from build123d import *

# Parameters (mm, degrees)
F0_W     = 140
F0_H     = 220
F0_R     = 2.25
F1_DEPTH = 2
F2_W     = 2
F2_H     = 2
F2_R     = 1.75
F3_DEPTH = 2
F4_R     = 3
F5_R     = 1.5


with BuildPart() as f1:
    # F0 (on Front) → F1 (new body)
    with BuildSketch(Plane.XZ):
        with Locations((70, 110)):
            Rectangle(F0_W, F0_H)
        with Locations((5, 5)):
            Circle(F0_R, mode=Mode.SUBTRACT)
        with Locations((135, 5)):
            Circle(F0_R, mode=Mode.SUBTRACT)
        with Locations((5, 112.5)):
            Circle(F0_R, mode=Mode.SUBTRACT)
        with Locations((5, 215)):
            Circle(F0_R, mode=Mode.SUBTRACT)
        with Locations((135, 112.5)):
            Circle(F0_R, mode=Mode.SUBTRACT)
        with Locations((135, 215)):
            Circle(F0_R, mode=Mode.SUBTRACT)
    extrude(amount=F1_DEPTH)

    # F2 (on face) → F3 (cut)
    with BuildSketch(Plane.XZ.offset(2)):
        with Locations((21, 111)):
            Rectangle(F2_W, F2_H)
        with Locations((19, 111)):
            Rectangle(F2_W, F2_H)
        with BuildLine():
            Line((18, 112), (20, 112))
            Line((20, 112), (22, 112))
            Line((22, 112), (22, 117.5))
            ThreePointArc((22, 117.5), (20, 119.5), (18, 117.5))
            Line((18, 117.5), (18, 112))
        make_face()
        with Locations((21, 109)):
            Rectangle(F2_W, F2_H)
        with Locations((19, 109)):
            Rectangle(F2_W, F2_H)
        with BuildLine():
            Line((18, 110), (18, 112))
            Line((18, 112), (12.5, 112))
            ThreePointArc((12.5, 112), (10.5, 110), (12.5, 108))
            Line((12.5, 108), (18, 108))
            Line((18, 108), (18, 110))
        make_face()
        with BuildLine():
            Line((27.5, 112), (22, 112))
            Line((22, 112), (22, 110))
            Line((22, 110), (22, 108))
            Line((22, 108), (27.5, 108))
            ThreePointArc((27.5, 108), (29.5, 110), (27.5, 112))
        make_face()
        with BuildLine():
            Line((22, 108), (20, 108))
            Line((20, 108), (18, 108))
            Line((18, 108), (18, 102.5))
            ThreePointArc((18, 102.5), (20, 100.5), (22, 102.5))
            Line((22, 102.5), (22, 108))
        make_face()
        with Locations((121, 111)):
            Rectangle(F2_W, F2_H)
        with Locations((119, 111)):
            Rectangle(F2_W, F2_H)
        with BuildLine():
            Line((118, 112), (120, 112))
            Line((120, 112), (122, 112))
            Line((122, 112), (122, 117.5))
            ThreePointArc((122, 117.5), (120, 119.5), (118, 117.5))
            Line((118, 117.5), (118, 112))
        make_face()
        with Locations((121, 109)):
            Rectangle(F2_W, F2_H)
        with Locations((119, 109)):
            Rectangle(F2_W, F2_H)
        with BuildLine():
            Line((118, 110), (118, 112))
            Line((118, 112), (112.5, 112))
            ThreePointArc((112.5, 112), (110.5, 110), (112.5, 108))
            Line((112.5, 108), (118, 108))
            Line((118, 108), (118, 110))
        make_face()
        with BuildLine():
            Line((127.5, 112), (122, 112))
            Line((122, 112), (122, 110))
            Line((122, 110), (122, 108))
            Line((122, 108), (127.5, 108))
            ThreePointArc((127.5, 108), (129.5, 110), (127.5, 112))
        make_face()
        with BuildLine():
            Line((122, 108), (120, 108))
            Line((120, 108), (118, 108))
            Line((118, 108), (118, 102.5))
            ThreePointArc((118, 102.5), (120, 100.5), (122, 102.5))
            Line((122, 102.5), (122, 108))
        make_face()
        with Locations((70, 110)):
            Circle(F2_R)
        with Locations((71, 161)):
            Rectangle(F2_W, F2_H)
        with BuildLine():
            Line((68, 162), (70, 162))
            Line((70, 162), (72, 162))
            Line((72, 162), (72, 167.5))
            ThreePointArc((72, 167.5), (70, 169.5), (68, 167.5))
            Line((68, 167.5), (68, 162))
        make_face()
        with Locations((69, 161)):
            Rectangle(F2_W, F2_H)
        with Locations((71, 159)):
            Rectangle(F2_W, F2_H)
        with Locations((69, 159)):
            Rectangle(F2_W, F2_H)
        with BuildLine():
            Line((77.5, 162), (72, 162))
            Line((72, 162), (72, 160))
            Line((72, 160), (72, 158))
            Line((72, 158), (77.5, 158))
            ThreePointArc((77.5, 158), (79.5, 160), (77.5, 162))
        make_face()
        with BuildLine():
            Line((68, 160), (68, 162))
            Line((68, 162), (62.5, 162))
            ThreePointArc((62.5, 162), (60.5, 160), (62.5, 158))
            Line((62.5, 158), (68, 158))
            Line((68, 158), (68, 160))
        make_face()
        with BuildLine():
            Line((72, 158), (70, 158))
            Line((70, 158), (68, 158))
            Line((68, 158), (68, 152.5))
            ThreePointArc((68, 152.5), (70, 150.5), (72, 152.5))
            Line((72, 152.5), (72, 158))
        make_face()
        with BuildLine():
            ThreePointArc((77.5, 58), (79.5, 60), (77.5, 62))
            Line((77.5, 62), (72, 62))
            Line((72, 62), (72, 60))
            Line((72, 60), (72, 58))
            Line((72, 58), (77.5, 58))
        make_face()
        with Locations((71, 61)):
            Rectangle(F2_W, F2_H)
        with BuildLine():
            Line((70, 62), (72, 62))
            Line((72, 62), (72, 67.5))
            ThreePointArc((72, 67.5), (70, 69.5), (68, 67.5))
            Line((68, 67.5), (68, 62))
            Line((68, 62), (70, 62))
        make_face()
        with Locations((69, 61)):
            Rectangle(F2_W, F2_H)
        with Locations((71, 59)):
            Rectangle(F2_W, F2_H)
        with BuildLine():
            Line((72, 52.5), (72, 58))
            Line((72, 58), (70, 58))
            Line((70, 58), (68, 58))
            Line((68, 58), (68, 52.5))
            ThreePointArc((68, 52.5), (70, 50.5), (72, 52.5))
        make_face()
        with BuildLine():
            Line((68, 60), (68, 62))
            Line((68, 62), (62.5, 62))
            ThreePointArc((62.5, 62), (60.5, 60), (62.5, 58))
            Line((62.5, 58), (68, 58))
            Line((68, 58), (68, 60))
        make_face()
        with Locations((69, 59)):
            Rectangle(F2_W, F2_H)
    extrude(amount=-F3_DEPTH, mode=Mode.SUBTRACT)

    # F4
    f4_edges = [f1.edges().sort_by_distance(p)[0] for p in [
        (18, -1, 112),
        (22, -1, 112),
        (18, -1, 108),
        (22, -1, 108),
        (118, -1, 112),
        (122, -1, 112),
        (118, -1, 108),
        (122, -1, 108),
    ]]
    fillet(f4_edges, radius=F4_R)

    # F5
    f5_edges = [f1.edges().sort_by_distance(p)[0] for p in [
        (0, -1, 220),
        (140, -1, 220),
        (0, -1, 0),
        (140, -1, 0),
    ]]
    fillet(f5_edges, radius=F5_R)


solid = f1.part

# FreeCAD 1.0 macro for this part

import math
import FreeCAD as App
import Part
import Sketcher
Q = App.Units.Quantity


def edges_at(feature, points):
    """Names of the edges that pass closest to the given points."""
    edges = feature.Shape.Edges
    near = lambda p: min(range(len(edges)), key=lambda i: edges[i].distToShape(Part.Vertex(*p))[0])
    return sorted({f"Edge{near(p) + 1}" for p in points})


def add_polygon(sketch, points):
    """Adds a closed chain of lines whose ends are joined by coincident constraints."""
    first, n = sketch.GeometryCount, len(points)
    for a, b in zip(points, points[1:] + points[:1]):
        sketch.addGeometry(Part.LineSegment(App.Vector(*a, 0), App.Vector(*b, 0)), False)
    for i in range(n):
        sketch.addConstraint(Sketcher.Constraint("Coincident", first + i, 2, first + (i + 1) % n, 1))

doc = App.newDocument("Part")
params = doc.addObject("Spreadsheet::Sheet", "Params")
for row, (alias, value) in enumerate([
    ("sketch1_diameter", "4.5 mm"),
    ("sketch1_width", "140 mm"),
    ("sketch1_height", "220 mm"),
    ("pad1_length", "2 mm"),
    ("sketch2_radius", "2 mm"),
    ("sketch2_diameter", "3.5 mm"),
    ("sketch2_width", "5.5 mm"),
    ("pocket1_length", "2 mm"),
    ("fillet_radius", "3 mm"),
    ("fillet2_radius", "1.5 mm"),
], start=1):
    params.set(f"A{row}", alias)
    params.set(f"B{row}", "=" + value)
    params.setAlias(f"B{row}", alias)

body = doc.addObject("PartDesign::Body", "Body")

# Sketch on XZ plane
sketch1 = doc.addObject("Sketcher::SketchObject", "Sketch")
body.addObject(sketch1)
sketch1.AttachmentSupport = (doc.XZ_Plane, [""])
sketch1.MapMode = "FlatFace"
add_polygon(sketch1, [(0, 220), (0, 0), (140, 0), (140, 220)])  # lines 0-3
sketch1.addGeometry(Part.Circle(App.Vector(5, 5, 0), App.Vector(0, 0, 1), 2.25), False)  # 4
sketch1.addGeometry(Part.Circle(App.Vector(135, 5, 0), App.Vector(0, 0, 1), 2.25), False)  # 5
sketch1.addGeometry(Part.Circle(App.Vector(5, 112.5, 0), App.Vector(0, 0, 1), 2.25), False)  # 6
sketch1.addGeometry(Part.Circle(App.Vector(5, 215, 0), App.Vector(0, 0, 1), 2.25), False)  # 7
sketch1.addGeometry(Part.Circle(App.Vector(135, 112.5, 0), App.Vector(0, 0, 1), 2.25), False)  # 8
sketch1.addGeometry(Part.Circle(App.Vector(135, 215, 0), App.Vector(0, 0, 1), 2.25), False)  # 9
sketch1.addConstraint([
    Sketcher.Constraint("Vertical", 0),
    Sketcher.Constraint("Horizontal", 1),
    Sketcher.Constraint("Vertical", 2),
    Sketcher.Constraint("Horizontal", 3),
    Sketcher.Constraint("Coincident", 0, 2, -1, 1),
    Sketcher.Constraint("Equal", 4, 5),
    Sketcher.Constraint("Equal", 5, 6),
    Sketcher.Constraint("Equal", 6, 7),
    Sketcher.Constraint("Equal", 7, 8),
    Sketcher.Constraint("Equal", 8, 9),
    Sketcher.Constraint("Horizontal", 4, 3, 5, 3),
    Sketcher.Constraint("Horizontal", 6, 3, 8, 3),
    Sketcher.Constraint("Horizontal", 7, 3, 9, 3),
    Sketcher.Constraint("Vertical", 4, 3, 6, 3),
    Sketcher.Constraint("Vertical", 6, 3, 7, 3),
    Sketcher.Constraint("Vertical", 5, 3, 8, 3),
    Sketcher.Constraint("Vertical", 8, 3, 9, 3),
    Sketcher.Constraint("Diameter", 4, Q("4.5 mm")),
    Sketcher.Constraint("DistanceX", 1, 1, 1, 2, Q("140 mm")),
    Sketcher.Constraint("DistanceY", 0, 2, 0, 1, Q("220 mm")),
    Sketcher.Constraint("DistanceX", -1, 1, 4, 3, Q("5 mm")),
    Sketcher.Constraint("DistanceY", -1, 1, 4, 3, Q("5 mm")),
    Sketcher.Constraint("DistanceX", -1, 1, 5, 3, Q("135 mm")),
    Sketcher.Constraint("DistanceY", -1, 1, 7, 3, Q("215 mm")),
    Sketcher.Constraint("DistanceY", -1, 1, 6, 3, Q("112.5 mm")),
])
sketch1.setExpression("Constraints[21]", "Params.sketch1_diameter")
sketch1.setExpression("Constraints[22]", "Params.sketch1_width")
sketch1.setExpression("Constraints[23]", "Params.sketch1_height")
pad1 = doc.addObject("PartDesign::Pad", "Pad")
body.addObject(pad1)
pad1.Profile = sketch1
pad1.setExpression("Length", "Params.pad1_length")

# Sketch on XZ plane
sketch2 = doc.addObject("Sketcher::SketchObject", "Sketch001")
body.addObject(sketch2)
sketch2.AttachmentSupport = (doc.XZ_Plane, [""])
sketch2.MapMode = "FlatFace"
sketch2.AttachmentOffset = App.Placement(App.Vector(0, 0, 2), App.Rotation())
sketch2.addGeometry([
    Part.ArcOfCircle(Part.Circle(App.Vector(20, 117.5, 0), App.Vector(0, 0, 1), 2), math.radians(0), math.radians(180)),  # 0
    Part.LineSegment(App.Vector(18, 117.5, 0), App.Vector(18, 112, 0)),  # 1
    Part.LineSegment(App.Vector(18, 112, 0), App.Vector(12.5, 112, 0)),  # 2
    Part.ArcOfCircle(Part.Circle(App.Vector(12.5, 110, 0), App.Vector(0, 0, 1), 2), math.radians(90), math.radians(270)),  # 3
    Part.LineSegment(App.Vector(12.5, 108, 0), App.Vector(18, 108, 0)),  # 4
    Part.LineSegment(App.Vector(18, 108, 0), App.Vector(18, 102.5, 0)),  # 5
    Part.ArcOfCircle(Part.Circle(App.Vector(20, 102.5, 0), App.Vector(0, 0, 1), 2), math.radians(180), math.radians(360)),  # 6
    Part.LineSegment(App.Vector(22, 102.5, 0), App.Vector(22, 108, 0)),  # 7
    Part.LineSegment(App.Vector(22, 108, 0), App.Vector(27.5, 108, 0)),  # 8
    Part.ArcOfCircle(Part.Circle(App.Vector(27.5, 110, 0), App.Vector(0, 0, 1), 2), math.radians(-90), math.radians(90)),  # 9
    Part.LineSegment(App.Vector(27.5, 112, 0), App.Vector(22, 112, 0)),  # 10
    Part.LineSegment(App.Vector(22, 112, 0), App.Vector(22, 117.5, 0)),  # 11
    Part.ArcOfCircle(Part.Circle(App.Vector(120, 117.5, 0), App.Vector(0, 0, 1), 2), math.radians(0), math.radians(180)),  # 12
    Part.LineSegment(App.Vector(118, 117.5, 0), App.Vector(118, 112, 0)),  # 13
    Part.LineSegment(App.Vector(118, 112, 0), App.Vector(112.5, 112, 0)),  # 14
    Part.ArcOfCircle(Part.Circle(App.Vector(112.5, 110, 0), App.Vector(0, 0, 1), 2), math.radians(90), math.radians(270)),  # 15
    Part.LineSegment(App.Vector(112.5, 108, 0), App.Vector(118, 108, 0)),  # 16
    Part.LineSegment(App.Vector(118, 108, 0), App.Vector(118, 102.5, 0)),  # 17
    Part.ArcOfCircle(Part.Circle(App.Vector(120, 102.5, 0), App.Vector(0, 0, 1), 2), math.radians(180), math.radians(360)),  # 18
    Part.LineSegment(App.Vector(122, 102.5, 0), App.Vector(122, 108, 0)),  # 19
    Part.LineSegment(App.Vector(122, 108, 0), App.Vector(127.5, 108, 0)),  # 20
    Part.ArcOfCircle(Part.Circle(App.Vector(127.5, 110, 0), App.Vector(0, 0, 1), 2), math.radians(-90), math.radians(90)),  # 21
    Part.LineSegment(App.Vector(127.5, 112, 0), App.Vector(122, 112, 0)),  # 22
    Part.LineSegment(App.Vector(122, 112, 0), App.Vector(122, 117.5, 0)),  # 23
    Part.Circle(App.Vector(70, 110, 0), App.Vector(0, 0, 1), 1.75),  # 24
    Part.ArcOfCircle(Part.Circle(App.Vector(70, 167.5, 0), App.Vector(0, 0, 1), 2), math.radians(0), math.radians(180)),  # 25
    Part.LineSegment(App.Vector(68, 167.5, 0), App.Vector(68, 162, 0)),  # 26
    Part.LineSegment(App.Vector(68, 162, 0), App.Vector(62.5, 162, 0)),  # 27
    Part.ArcOfCircle(Part.Circle(App.Vector(62.5, 160, 0), App.Vector(0, 0, 1), 2), math.radians(90), math.radians(270)),  # 28
    Part.LineSegment(App.Vector(62.5, 158, 0), App.Vector(68, 158, 0)),  # 29
    Part.LineSegment(App.Vector(68, 158, 0), App.Vector(68, 152.5, 0)),  # 30
    Part.ArcOfCircle(Part.Circle(App.Vector(70, 152.5, 0), App.Vector(0, 0, 1), 2), math.radians(180), math.radians(360)),  # 31
    Part.LineSegment(App.Vector(72, 152.5, 0), App.Vector(72, 158, 0)),  # 32
    Part.LineSegment(App.Vector(72, 158, 0), App.Vector(77.5, 158, 0)),  # 33
    Part.ArcOfCircle(Part.Circle(App.Vector(77.5, 160, 0), App.Vector(0, 0, 1), 2), math.radians(-90), math.radians(90)),  # 34
    Part.LineSegment(App.Vector(77.5, 162, 0), App.Vector(72, 162, 0)),  # 35
    Part.LineSegment(App.Vector(72, 162, 0), App.Vector(72, 167.5, 0)),  # 36
    Part.LineSegment(App.Vector(62.5, 58, 0), App.Vector(68, 58, 0)),  # 37
    Part.LineSegment(App.Vector(68, 58, 0), App.Vector(68, 52.5, 0)),  # 38
    Part.ArcOfCircle(Part.Circle(App.Vector(70, 52.5, 0), App.Vector(0, 0, 1), 2), math.radians(180), math.radians(360)),  # 39
    Part.LineSegment(App.Vector(72, 52.5, 0), App.Vector(72, 58, 0)),  # 40
    Part.LineSegment(App.Vector(72, 58, 0), App.Vector(77.5, 58, 0)),  # 41
    Part.ArcOfCircle(Part.Circle(App.Vector(77.5, 60, 0), App.Vector(0, 0, 1), 2), math.radians(-90), math.radians(90)),  # 42
    Part.LineSegment(App.Vector(77.5, 62, 0), App.Vector(72, 62, 0)),  # 43
    Part.LineSegment(App.Vector(72, 62, 0), App.Vector(72, 67.5, 0)),  # 44
    Part.ArcOfCircle(Part.Circle(App.Vector(70, 67.5, 0), App.Vector(0, 0, 1), 2), math.radians(0), math.radians(180)),  # 45
    Part.LineSegment(App.Vector(68, 67.5, 0), App.Vector(68, 62, 0)),  # 46
    Part.LineSegment(App.Vector(68, 62, 0), App.Vector(62.5, 62, 0)),  # 47
    Part.ArcOfCircle(Part.Circle(App.Vector(62.5, 60, 0), App.Vector(0, 0, 1), 2), math.radians(90), math.radians(270)),  # 48
], False)
sketch2.addConstraint([
    Sketcher.Constraint("Tangent", 0, 2, 1, 1),
    Sketcher.Constraint("Coincident", 1, 2, 2, 1),
    Sketcher.Constraint("Tangent", 2, 2, 3, 1),
    Sketcher.Constraint("Tangent", 3, 2, 4, 1),
    Sketcher.Constraint("Coincident", 4, 2, 5, 1),
    Sketcher.Constraint("Tangent", 5, 2, 6, 1),
    Sketcher.Constraint("Tangent", 6, 2, 7, 1),
    Sketcher.Constraint("Coincident", 7, 2, 8, 1),
    Sketcher.Constraint("Tangent", 8, 2, 9, 1),
    Sketcher.Constraint("Tangent", 9, 2, 10, 1),
    Sketcher.Constraint("Coincident", 10, 2, 11, 1),
    Sketcher.Constraint("Tangent", 11, 2, 0, 1),
    Sketcher.Constraint("Tangent", 12, 2, 13, 1),
    Sketcher.Constraint("Coincident", 13, 2, 14, 1),
    Sketcher.Constraint("Tangent", 14, 2, 15, 1),
    Sketcher.Constraint("Tangent", 15, 2, 16, 1),
    Sketcher.Constraint("Coincident", 16, 2, 17, 1),
    Sketcher.Constraint("Tangent", 17, 2, 18, 1),
    Sketcher.Constraint("Tangent", 18, 2, 19, 1),
    Sketcher.Constraint("Coincident", 19, 2, 20, 1),
    Sketcher.Constraint("Tangent", 20, 2, 21, 1),
    Sketcher.Constraint("Tangent", 21, 2, 22, 1),
    Sketcher.Constraint("Coincident", 22, 2, 23, 1),
    Sketcher.Constraint("Tangent", 23, 2, 12, 1),
    Sketcher.Constraint("Tangent", 25, 2, 26, 1),
    Sketcher.Constraint("Coincident", 26, 2, 27, 1),
    Sketcher.Constraint("Tangent", 27, 2, 28, 1),
    Sketcher.Constraint("Tangent", 28, 2, 29, 1),
    Sketcher.Constraint("Coincident", 29, 2, 30, 1),
    Sketcher.Constraint("Tangent", 30, 2, 31, 1),
    Sketcher.Constraint("Tangent", 31, 2, 32, 1),
    Sketcher.Constraint("Coincident", 32, 2, 33, 1),
    Sketcher.Constraint("Tangent", 33, 2, 34, 1),
    Sketcher.Constraint("Tangent", 34, 2, 35, 1),
    Sketcher.Constraint("Coincident", 35, 2, 36, 1),
    Sketcher.Constraint("Tangent", 36, 2, 25, 1),
    Sketcher.Constraint("Coincident", 37, 2, 38, 1),
    Sketcher.Constraint("Tangent", 38, 2, 39, 1),
    Sketcher.Constraint("Tangent", 39, 2, 40, 1),
    Sketcher.Constraint("Coincident", 40, 2, 41, 1),
    Sketcher.Constraint("Tangent", 41, 2, 42, 1),
    Sketcher.Constraint("Tangent", 42, 2, 43, 1),
    Sketcher.Constraint("Coincident", 43, 2, 44, 1),
    Sketcher.Constraint("Tangent", 44, 2, 45, 1),
    Sketcher.Constraint("Tangent", 45, 2, 46, 1),
    Sketcher.Constraint("Coincident", 46, 2, 47, 1),
    Sketcher.Constraint("Tangent", 47, 2, 48, 1),
    Sketcher.Constraint("Tangent", 48, 2, 37, 1),
    Sketcher.Constraint("Vertical", 1),
    Sketcher.Constraint("Horizontal", 2),
    Sketcher.Constraint("Horizontal", 4),
    Sketcher.Constraint("Vertical", 5),
    Sketcher.Constraint("Vertical", 7),
    Sketcher.Constraint("Horizontal", 8),
    Sketcher.Constraint("Horizontal", 10),
    Sketcher.Constraint("Vertical", 11),
    Sketcher.Constraint("Vertical", 13),
    Sketcher.Constraint("Horizontal", 14),
    Sketcher.Constraint("Horizontal", 16),
    Sketcher.Constraint("Vertical", 17),
    Sketcher.Constraint("Vertical", 19),
    Sketcher.Constraint("Horizontal", 20),
    Sketcher.Constraint("Horizontal", 22),
    Sketcher.Constraint("Vertical", 23),
    Sketcher.Constraint("Vertical", 26),
    Sketcher.Constraint("Horizontal", 27),
    Sketcher.Constraint("Horizontal", 29),
    Sketcher.Constraint("Vertical", 30),
    Sketcher.Constraint("Vertical", 32),
    Sketcher.Constraint("Horizontal", 33),
    Sketcher.Constraint("Horizontal", 35),
    Sketcher.Constraint("Vertical", 36),
    Sketcher.Constraint("Horizontal", 37),
    Sketcher.Constraint("Vertical", 38),
    Sketcher.Constraint("Vertical", 40),
    Sketcher.Constraint("Horizontal", 41),
    Sketcher.Constraint("Horizontal", 43),
    Sketcher.Constraint("Vertical", 44),
    Sketcher.Constraint("Vertical", 46),
    Sketcher.Constraint("Horizontal", 47),
    Sketcher.Constraint("Equal", 0, 3),
    Sketcher.Constraint("Equal", 3, 6),
    Sketcher.Constraint("Equal", 6, 9),
    Sketcher.Constraint("Equal", 9, 12),
    Sketcher.Constraint("Equal", 12, 15),
    Sketcher.Constraint("Equal", 15, 18),
    Sketcher.Constraint("Equal", 18, 21),
    Sketcher.Constraint("Equal", 21, 25),
    Sketcher.Constraint("Equal", 25, 28),
    Sketcher.Constraint("Equal", 28, 31),
    Sketcher.Constraint("Equal", 31, 34),
    Sketcher.Constraint("Equal", 34, 39),
    Sketcher.Constraint("Equal", 39, 42),
    Sketcher.Constraint("Equal", 42, 45),
    Sketcher.Constraint("Equal", 45, 48),
    Sketcher.Constraint("Horizontal", 3, 3, 9, 3),
    Sketcher.Constraint("Horizontal", 0, 3, 12, 3),
    Sketcher.Constraint("Horizontal", 9, 3, 15, 3),
    Sketcher.Constraint("Horizontal", 6, 3, 18, 3),
    Sketcher.Constraint("Horizontal", 15, 3, 21, 3),
    Sketcher.Constraint("Horizontal", 21, 3, 24, 3),
    Sketcher.Constraint("Horizontal", 28, 3, 34, 3),
    Sketcher.Constraint("Horizontal", 42, 3, 48, 3),
    Sketcher.Constraint("Vertical", 0, 3, 6, 3),
    Sketcher.Constraint("Vertical", 12, 3, 18, 3),
    Sketcher.Constraint("Vertical", 24, 3, 25, 3),
    Sketcher.Constraint("Vertical", 25, 3, 31, 3),
    Sketcher.Constraint("Vertical", 31, 3, 39, 3),
    Sketcher.Constraint("Vertical", 34, 3, 42, 3),
    Sketcher.Constraint("Vertical", 39, 3, 45, 3),
    Sketcher.Constraint("Vertical", 28, 3, 48, 3),
    Sketcher.Constraint("Equal", 4, 8),
    Sketcher.Constraint("Equal", 10, 14),
    Sketcher.Constraint("Equal", 16, 20),
    Sketcher.Constraint("Equal", 22, 27),
    Sketcher.Constraint("Equal", 29, 33),
    Sketcher.Constraint("Equal", 47, 1),
    Sketcher.Constraint("Equal", 1, 5),
    Sketcher.Constraint("Equal", 23, 26),
    Sketcher.Constraint("Equal", 26, 30),
    Sketcher.Constraint("Equal", 36, 38),
    Sketcher.Constraint("Equal", 40, 44),
    Sketcher.Constraint("Radius", 0, Q("2 mm")),
    Sketcher.Constraint("Diameter", 24, Q("3.5 mm")),
    Sketcher.Constraint("DistanceX", 2, 2, 2, 1, Q("5.5 mm")),
    Sketcher.Constraint("DistanceX", -1, 1, 0, 3, Q("20 mm")),
    Sketcher.Constraint("DistanceY", -1, 1, 3, 3, Q("110 mm")),
    Sketcher.Constraint("DistanceX", -1, 1, 12, 3, Q("120 mm")),
    Sketcher.Constraint("DistanceX", -1, 1, 24, 3, Q("70 mm")),
    Sketcher.Constraint("DistanceY", -1, 1, 28, 3, Q("160 mm")),
    Sketcher.Constraint("DistanceY", -1, 1, 42, 3, Q("60 mm")),
])
sketch2.setExpression("Constraints[122]", "Params.sketch2_radius")
sketch2.setExpression("Constraints[123]", "Params.sketch2_diameter")
sketch2.setExpression("Constraints[124]", "Params.sketch2_width")
pocket1 = doc.addObject("PartDesign::Pocket", "Pocket")
body.addObject(pocket1)
pocket1.Profile = sketch2
pocket1.setExpression("Length", "Params.pocket1_length")
doc.recompute()

fillet = doc.addObject("PartDesign::Fillet", "Fillet")
body.addObject(fillet)
fillet.Base = (pocket1, edges_at(pocket1, [
    (18, -1, 112),
    (22, -1, 112),
    (18, -1, 108),
    (22, -1, 108),
    (118, -1, 112),
    (122, -1, 112),
    (118, -1, 108),
    (122, -1, 108),
]))
fillet.setExpression("Radius", "Params.fillet_radius")
doc.recompute()

fillet2 = doc.addObject("PartDesign::Fillet", "Fillet001")
body.addObject(fillet2)
fillet2.Base = (fillet, edges_at(fillet, [
    (0, -1, 220),
    (140, -1, 220),
    (0, -1, 0),
    (140, -1, 0),
]))
fillet2.setExpression("Radius", "Params.fillet2_radius")

doc.recompute()
